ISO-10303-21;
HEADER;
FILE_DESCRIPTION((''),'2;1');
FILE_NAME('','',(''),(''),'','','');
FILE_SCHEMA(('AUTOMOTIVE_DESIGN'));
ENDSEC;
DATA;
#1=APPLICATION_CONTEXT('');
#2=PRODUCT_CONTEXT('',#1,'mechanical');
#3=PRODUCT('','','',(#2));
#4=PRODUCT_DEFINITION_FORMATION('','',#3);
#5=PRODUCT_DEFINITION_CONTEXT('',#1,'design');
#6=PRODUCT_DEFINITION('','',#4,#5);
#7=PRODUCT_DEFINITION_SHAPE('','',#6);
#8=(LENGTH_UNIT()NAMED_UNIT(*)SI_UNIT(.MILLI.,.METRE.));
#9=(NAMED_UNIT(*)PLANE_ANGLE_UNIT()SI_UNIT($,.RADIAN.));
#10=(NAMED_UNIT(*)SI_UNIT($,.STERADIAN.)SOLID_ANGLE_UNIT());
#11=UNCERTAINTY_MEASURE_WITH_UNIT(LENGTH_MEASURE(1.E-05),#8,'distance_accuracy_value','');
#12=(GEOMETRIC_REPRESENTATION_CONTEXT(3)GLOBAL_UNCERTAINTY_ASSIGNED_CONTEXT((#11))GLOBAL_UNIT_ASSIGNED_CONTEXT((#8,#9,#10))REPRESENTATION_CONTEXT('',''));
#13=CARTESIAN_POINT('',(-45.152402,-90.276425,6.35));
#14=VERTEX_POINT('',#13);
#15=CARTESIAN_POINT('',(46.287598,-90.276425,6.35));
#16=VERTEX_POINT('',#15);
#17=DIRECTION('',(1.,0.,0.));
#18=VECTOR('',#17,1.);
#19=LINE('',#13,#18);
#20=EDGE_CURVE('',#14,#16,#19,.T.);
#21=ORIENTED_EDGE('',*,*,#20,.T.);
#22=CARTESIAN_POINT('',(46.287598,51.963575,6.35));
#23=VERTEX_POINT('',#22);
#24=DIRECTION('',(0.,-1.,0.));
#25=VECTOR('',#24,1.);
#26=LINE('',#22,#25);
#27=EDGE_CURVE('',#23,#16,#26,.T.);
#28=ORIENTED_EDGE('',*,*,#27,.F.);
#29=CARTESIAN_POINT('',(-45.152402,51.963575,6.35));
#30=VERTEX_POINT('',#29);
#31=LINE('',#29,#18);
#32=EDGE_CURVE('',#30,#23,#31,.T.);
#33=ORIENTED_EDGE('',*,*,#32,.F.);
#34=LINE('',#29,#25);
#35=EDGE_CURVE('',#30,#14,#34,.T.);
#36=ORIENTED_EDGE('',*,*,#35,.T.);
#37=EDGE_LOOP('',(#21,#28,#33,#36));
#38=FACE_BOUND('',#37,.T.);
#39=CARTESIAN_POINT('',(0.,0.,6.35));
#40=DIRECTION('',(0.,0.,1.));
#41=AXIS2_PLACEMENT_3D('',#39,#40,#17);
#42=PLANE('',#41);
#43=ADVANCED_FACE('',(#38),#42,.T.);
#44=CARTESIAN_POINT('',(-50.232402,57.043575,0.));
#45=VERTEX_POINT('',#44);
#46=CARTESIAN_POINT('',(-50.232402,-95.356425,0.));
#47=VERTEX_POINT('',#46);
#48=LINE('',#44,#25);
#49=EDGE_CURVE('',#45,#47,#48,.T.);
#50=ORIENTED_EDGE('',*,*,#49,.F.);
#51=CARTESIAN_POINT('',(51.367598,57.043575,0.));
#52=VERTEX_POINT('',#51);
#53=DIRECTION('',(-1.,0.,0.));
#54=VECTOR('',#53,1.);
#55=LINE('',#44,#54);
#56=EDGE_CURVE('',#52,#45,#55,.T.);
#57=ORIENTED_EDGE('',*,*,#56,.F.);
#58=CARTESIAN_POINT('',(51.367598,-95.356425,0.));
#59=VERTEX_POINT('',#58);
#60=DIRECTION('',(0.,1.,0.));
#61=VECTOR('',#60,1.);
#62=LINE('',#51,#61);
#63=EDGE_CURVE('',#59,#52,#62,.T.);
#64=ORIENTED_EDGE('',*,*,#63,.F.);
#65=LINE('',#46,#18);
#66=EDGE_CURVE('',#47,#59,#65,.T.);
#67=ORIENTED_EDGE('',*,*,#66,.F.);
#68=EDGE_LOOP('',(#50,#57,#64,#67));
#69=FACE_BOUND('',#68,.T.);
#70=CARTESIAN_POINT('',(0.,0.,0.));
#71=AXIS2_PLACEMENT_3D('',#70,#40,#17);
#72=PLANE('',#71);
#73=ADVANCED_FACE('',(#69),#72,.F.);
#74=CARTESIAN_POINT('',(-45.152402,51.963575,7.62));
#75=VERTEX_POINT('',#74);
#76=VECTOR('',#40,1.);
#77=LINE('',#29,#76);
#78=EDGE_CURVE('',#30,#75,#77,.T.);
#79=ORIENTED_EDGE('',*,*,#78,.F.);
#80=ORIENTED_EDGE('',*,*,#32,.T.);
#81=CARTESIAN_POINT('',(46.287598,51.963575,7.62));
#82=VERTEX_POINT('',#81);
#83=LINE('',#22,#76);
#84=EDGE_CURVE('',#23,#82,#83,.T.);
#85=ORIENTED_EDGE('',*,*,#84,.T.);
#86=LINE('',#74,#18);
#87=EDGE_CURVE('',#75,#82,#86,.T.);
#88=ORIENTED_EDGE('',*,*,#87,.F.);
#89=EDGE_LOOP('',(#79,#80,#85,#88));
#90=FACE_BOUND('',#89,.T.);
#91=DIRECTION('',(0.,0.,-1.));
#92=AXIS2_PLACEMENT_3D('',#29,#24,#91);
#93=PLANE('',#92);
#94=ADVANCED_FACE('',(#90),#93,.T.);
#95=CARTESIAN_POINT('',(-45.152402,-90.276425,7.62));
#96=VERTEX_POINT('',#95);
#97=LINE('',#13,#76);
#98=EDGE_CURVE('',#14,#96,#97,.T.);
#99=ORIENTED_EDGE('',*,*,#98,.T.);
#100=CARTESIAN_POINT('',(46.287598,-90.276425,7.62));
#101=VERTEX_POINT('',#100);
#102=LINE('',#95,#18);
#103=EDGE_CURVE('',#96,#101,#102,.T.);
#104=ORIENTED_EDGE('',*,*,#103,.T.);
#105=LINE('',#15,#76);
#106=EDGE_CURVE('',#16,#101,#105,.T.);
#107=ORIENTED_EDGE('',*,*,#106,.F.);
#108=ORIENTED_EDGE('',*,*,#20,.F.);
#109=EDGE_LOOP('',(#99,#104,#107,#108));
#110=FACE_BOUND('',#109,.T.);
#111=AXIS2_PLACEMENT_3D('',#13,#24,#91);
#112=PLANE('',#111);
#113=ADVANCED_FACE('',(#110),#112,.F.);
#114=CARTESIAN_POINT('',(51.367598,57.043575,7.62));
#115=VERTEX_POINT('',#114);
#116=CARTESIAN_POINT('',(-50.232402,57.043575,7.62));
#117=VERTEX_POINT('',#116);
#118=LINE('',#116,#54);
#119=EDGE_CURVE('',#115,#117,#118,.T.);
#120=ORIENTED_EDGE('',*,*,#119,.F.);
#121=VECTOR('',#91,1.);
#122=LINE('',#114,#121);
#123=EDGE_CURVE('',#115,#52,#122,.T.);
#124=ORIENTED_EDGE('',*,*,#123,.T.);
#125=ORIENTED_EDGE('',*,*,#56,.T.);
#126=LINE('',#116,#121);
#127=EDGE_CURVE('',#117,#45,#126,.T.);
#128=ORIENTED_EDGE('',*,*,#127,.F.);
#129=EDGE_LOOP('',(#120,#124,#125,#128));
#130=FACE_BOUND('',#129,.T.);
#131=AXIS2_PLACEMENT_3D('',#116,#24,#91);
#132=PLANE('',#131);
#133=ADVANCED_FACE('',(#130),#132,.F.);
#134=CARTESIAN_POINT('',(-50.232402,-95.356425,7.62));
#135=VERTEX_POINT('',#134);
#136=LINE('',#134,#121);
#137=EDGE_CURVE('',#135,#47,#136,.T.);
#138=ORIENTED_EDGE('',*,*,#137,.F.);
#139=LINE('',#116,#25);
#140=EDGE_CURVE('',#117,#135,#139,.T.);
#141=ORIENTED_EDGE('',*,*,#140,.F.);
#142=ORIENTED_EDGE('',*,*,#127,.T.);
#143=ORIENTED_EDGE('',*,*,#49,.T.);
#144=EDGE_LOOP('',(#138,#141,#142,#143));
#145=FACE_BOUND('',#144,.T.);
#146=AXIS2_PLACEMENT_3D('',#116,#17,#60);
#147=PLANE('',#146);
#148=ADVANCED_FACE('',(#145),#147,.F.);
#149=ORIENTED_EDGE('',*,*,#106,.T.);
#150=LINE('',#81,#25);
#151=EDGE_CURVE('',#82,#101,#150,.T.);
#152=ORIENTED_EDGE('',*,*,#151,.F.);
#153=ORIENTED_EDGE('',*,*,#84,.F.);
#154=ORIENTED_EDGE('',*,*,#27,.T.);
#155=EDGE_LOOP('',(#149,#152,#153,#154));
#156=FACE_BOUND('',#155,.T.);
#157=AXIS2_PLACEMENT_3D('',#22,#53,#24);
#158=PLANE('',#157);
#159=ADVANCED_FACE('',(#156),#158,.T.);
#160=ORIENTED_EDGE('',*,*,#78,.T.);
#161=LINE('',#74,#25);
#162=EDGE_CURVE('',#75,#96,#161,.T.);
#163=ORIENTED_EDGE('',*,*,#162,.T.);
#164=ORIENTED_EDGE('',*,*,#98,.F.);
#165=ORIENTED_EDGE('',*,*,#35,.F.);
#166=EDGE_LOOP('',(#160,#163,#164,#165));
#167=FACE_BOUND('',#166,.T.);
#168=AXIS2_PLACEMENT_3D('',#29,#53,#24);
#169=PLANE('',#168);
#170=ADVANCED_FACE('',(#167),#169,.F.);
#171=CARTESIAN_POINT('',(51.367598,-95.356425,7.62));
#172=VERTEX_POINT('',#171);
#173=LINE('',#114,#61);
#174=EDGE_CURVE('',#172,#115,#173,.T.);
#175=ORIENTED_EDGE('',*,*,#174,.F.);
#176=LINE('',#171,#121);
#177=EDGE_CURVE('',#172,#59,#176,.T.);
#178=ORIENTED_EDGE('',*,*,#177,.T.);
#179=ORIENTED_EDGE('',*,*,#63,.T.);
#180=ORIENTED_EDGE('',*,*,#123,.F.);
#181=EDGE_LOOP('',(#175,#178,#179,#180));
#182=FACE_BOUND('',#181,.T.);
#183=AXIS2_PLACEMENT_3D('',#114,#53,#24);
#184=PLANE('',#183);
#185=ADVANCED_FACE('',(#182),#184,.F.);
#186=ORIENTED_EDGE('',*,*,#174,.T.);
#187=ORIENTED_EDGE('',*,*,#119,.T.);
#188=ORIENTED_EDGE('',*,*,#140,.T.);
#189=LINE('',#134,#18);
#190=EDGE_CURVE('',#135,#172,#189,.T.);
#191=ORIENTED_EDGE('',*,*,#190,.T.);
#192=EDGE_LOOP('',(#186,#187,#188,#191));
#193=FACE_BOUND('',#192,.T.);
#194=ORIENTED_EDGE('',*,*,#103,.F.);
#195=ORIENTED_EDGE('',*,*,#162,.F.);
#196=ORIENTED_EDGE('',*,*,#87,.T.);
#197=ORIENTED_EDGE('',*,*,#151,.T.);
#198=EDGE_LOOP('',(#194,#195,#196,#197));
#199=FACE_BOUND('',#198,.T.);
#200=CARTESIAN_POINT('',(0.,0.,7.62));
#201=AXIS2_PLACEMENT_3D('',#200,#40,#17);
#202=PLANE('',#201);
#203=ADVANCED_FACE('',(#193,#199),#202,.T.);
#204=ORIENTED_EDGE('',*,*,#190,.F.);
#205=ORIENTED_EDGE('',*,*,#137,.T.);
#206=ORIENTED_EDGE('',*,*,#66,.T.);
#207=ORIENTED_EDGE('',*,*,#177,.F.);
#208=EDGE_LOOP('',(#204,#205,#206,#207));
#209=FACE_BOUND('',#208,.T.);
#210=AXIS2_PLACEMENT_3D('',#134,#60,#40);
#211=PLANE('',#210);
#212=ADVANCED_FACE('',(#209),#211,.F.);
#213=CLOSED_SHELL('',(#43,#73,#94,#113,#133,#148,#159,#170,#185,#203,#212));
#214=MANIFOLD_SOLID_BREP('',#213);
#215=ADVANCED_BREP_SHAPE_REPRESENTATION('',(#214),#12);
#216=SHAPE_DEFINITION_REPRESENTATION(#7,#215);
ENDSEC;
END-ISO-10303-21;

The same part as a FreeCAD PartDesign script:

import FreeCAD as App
import Part
import Sketcher

V = App.Vector
Q = App.Units.Quantity


def add_polygon(sketch, points):
    """Adds a closed chain of lines whose ends are joined by coincident constraints."""
    first, n = sketch.GeometryCount, len(points)
    for a, b in zip(points, points[1:] + points[:1]):
        sketch.addGeometry(Part.LineSegment(App.Vector(*a, 0), App.Vector(*b, 0)), False)
    for i in range(n):
        sketch.addConstraint(Sketcher.Constraint("Coincident", first + i, 2, first + (i + 1) % n, 1))

doc = App.newDocument("Part")
body = doc.addObject("PartDesign::Body", "Body")

sketch1 = doc.addObject("Sketcher::SketchObject", "Sketch")
body.addObject(sketch1)
sketch1.AttachmentSupport = (doc.XY_Plane, [""])
sketch1.MapMode = "FlatFace"
add_polygon(sketch1, [(-50, 57), (-50, -95), (51, -95), (51, 57)])
sketch1.addConstraint([
    Sketcher.Constraint("Vertical", 0),
    Sketcher.Constraint("Horizontal", 1),
    Sketcher.Constraint("Vertical", 2),
    Sketcher.Constraint("Horizontal", 3),
    Sketcher.Constraint("DistanceX", 1, 1, 1, 2, Q("4 in")),
    Sketcher.Constraint("DistanceY", 0, 2, 0, 1, Q("6 in")),
    Sketcher.Constraint("DistanceX", 0, 2, -1, 1, 50.232402),
    Sketcher.Constraint("DistanceY", 0, 2, -1, 1, 95.356425),
])
pad1 = doc.addObject("PartDesign::Pad", "Pad")
body.addObject(pad1)
pad1.Profile = sketch1
pad1.Length = Q("0.3 in")

sketch2 = doc.addObject("Sketcher::SketchObject", "Sketch001")
body.addObject(sketch2)
sketch2.AttachmentSupport = (doc.XY_Plane, [""])
sketch2.MapMode = "FlatFace"
sketch2.AttachmentOffset = App.Placement(V(0, 0, 0.3 * 25.4), App.Rotation())
add_polygon(sketch2, [(-45, 52), (-45, -90), (46, -90), (46, 52)])
sketch2.addConstraint([
    Sketcher.Constraint("Vertical", 0),
    Sketcher.Constraint("Horizontal", 1),
    Sketcher.Constraint("Vertical", 2),
    Sketcher.Constraint("Horizontal", 3),
    Sketcher.Constraint("DistanceX", 1, 1, 1, 2, Q("3.6 in")),
    Sketcher.Constraint("DistanceY", 0, 2, 0, 1, Q("5.6 in")),
    Sketcher.Constraint("DistanceX", 0, 2, -1, 1, 45.152402),
    Sketcher.Constraint("DistanceY", 0, 2, -1, 1, 90.276425),
])
pocket1 = doc.addObject("PartDesign::Pocket", "Pocket")
body.addObject(pocket1)
pocket1.Profile = sketch2
pocket1.Length = Q("0.05 in")

doc.recompute()
